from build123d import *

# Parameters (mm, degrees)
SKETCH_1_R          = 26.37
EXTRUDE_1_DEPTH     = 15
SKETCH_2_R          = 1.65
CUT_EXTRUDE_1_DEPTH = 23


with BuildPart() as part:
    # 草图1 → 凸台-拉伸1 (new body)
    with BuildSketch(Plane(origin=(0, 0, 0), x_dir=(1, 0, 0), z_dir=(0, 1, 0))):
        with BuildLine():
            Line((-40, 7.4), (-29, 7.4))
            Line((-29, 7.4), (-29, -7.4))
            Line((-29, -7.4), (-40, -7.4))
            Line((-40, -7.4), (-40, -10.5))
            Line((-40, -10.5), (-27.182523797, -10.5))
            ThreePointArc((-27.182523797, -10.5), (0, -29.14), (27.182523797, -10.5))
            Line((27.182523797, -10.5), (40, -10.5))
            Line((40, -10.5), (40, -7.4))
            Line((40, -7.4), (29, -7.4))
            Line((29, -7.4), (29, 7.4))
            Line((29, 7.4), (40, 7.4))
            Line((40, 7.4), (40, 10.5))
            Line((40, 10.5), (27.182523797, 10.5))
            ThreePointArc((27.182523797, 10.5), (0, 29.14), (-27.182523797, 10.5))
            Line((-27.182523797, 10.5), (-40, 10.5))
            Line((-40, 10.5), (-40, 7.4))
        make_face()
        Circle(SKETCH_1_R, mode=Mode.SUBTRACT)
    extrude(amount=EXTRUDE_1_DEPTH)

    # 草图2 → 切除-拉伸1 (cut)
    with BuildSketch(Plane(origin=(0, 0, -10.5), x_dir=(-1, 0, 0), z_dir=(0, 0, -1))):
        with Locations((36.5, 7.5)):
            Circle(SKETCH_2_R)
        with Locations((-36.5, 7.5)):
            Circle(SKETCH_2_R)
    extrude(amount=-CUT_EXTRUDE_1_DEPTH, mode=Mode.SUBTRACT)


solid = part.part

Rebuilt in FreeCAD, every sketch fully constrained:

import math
import FreeCAD as App
import Part
import Sketcher
from FreeCAD import Vector
Q = App.Units.Quantity

doc = App.newDocument("Part")
body = doc.addObject("PartDesign::Body", "Body")

sketch1 = body.newObject("Sketcher::SketchObject", "Sketch")
sketch1.AttachmentSupport = (doc.getObject("XZ_Plane"), [""])
sketch1.MapMode = "FlatFace"
sketch1.addGeometry([
    Part.LineSegment(Vector(-40, -7.4, 0), Vector(-29, -7.4, 0)),
    Part.LineSegment(Vector(-29, -7.4, 0), Vector(-29, 7.4, 0)),
    Part.LineSegment(Vector(-29, 7.4, 0), Vector(-40, 7.4, 0)),
    Part.LineSegment(Vector(-40, 7.4, 0), Vector(-40, 10.5, 0)),
    Part.LineSegment(Vector(-40, 10.5, 0), Vector(-27.2, 10.5, 0)),
    Part.ArcOfCircle(Part.Circle(Vector(0, 0, 0), Vector(0, 0, 1), 29.1), math.radians(21), math.radians(159)),
    Part.LineSegment(Vector(27.2, 10.5, 0), Vector(40, 10.5, 0)),
    Part.LineSegment(Vector(40, 10.5, 0), Vector(40, 7.4, 0)),
    Part.LineSegment(Vector(40, 7.4, 0), Vector(29, 7.4, 0)),
    Part.LineSegment(Vector(29, 7.4, 0), Vector(29, -7.4, 0)),
    Part.LineSegment(Vector(29, -7.4, 0), Vector(40, -7.4, 0)),
    Part.LineSegment(Vector(40, -7.4, 0), Vector(40, -10.5, 0)),
    Part.LineSegment(Vector(40, -10.5, 0), Vector(27.2, -10.5, 0)),
    Part.ArcOfCircle(Part.Circle(Vector(0, 0, 0), Vector(0, 0, 1), 29.1), math.radians(-159), math.radians(-21)),
    Part.LineSegment(Vector(-27.2, -10.5, 0), Vector(-40, -10.5, 0)),
    Part.LineSegment(Vector(-40, -10.5, 0), Vector(-40, -7.4, 0)),
    Part.Circle(Vector(0, 0, 0), Vector(0, 0, 1), 26.4),
], False)
sketch1.addConstraint([
    Sketcher.Constraint("Coincident", 0, 2, 1, 1),
    Sketcher.Constraint("Coincident", 1, 2, 2, 1),
    Sketcher.Constraint("Coincident", 2, 2, 3, 1),
    Sketcher.Constraint("Coincident", 3, 2, 4, 1),
    Sketcher.Constraint("Coincident", 4, 2, 5, 2),
    Sketcher.Constraint("Coincident", 5, 1, 6, 1),
    Sketcher.Constraint("Coincident", 6, 2, 7, 1),
    Sketcher.Constraint("Coincident", 7, 2, 8, 1),
    Sketcher.Constraint("Coincident", 8, 2, 9, 1),
    Sketcher.Constraint("Coincident", 9, 2, 10, 1),
    Sketcher.Constraint("Coincident", 10, 2, 11, 1),
    Sketcher.Constraint("Coincident", 11, 2, 12, 1),
    Sketcher.Constraint("Coincident", 12, 2, 13, 2),
    Sketcher.Constraint("Coincident", 13, 1, 14, 1),
    Sketcher.Constraint("Coincident", 14, 2, 15, 1),
    Sketcher.Constraint("Coincident", 15, 2, 0, 1),
    Sketcher.Constraint("Horizontal", 0),
    Sketcher.Constraint("Vertical", 1),
    Sketcher.Constraint("Horizontal", 2),
    Sketcher.Constraint("Vertical", 3),
    Sketcher.Constraint("Horizontal", 4),
    Sketcher.Constraint("Horizontal", 6),
    Sketcher.Constraint("Vertical", 7),
    Sketcher.Constraint("Horizontal", 8),
    Sketcher.Constraint("Vertical", 9),
    Sketcher.Constraint("Horizontal", 10),
    Sketcher.Constraint("Vertical", 11),
    Sketcher.Constraint("Horizontal", 12),
    Sketcher.Constraint("Horizontal", 14),
    Sketcher.Constraint("Vertical", 15),
    Sketcher.Constraint("Coincident", 5, 3, -1, 1),
    Sketcher.Constraint("Coincident", 13, 3, -1, 1),
    Sketcher.Constraint("Coincident", 16, 3, -1, 1),
    Sketcher.Constraint("Equal", 5, 13),
    Sketcher.Constraint("Symmetric", 0, 2, 8, 2, -1, 1),
    Sketcher.Constraint("Symmetric", 2, 2, 10, 2, -1, 1),
    Sketcher.Constraint("Symmetric", 6, 2, 14, 2, -1, 1),
    Sketcher.Constraint("Symmetric", 3, 2, 6, 2, -2),
    Sketcher.Constraint("Horizontal", 2, 2, 7, 2),
    Sketcher.Constraint("Horizontal", 12, 2, 13, 1),
    Sketcher.Constraint("Diameter", 16, Q("52.74 mm")),
    Sketcher.Constraint("DistanceX", 0, 1, 0, 2, Q("11 mm")),
    Sketcher.Constraint("Radius", 5, Q("29.14 mm")),
    Sketcher.Constraint("DistanceY", 1, 1, 1, 2, Q("14.8 mm")),
    Sketcher.Constraint("DistanceY", 3, 1, 3, 2, Q("3.1 mm")),
    Sketcher.Constraint("DistanceX", 0, 2, -1, 1, Q("29 mm")),
])
pad1 = body.newObject("PartDesign::Pad", "Pad")
pad1.Profile = sketch1
pad1.Length = 15
pad1.Reversed = True

sketch2 = body.newObject("Sketcher::SketchObject", "Sketch001")
sketch2.AttachmentSupport = (doc.getObject("XY_Plane"), [""])
sketch2.MapMode = "FlatFace"
sketch2.AttachmentOffset = App.Placement(Vector(0, 0, -10.5), App.Rotation())
sketch2.addGeometry([
    Part.Circle(Vector(-36.5, 7.5, 0), Vector(0, 0, 1), 1.6),
    Part.Circle(Vector(36.5, 7.5, 0), Vector(0, 0, 1), 1.6),
], False)
sketch2.addConstraint([
    Sketcher.Constraint("Equal", 0, 1),
    Sketcher.Constraint("Symmetric", 0, 3, 1, 3, -2),
    Sketcher.Constraint("Diameter", 0, Q("3.3 mm")),
    Sketcher.Constraint("DistanceX", 0, 3, 1, 3, Q("73 mm")),
    Sketcher.Constraint("DistanceY", -1, 1, 0, 3, Q("7.5 mm")),
])
pocket1 = body.newObject("PartDesign::Pocket", "Pocket")
pocket1.Profile = sketch2
pocket1.Length = 23
pocket1.Reversed = True

doc.recompute()
